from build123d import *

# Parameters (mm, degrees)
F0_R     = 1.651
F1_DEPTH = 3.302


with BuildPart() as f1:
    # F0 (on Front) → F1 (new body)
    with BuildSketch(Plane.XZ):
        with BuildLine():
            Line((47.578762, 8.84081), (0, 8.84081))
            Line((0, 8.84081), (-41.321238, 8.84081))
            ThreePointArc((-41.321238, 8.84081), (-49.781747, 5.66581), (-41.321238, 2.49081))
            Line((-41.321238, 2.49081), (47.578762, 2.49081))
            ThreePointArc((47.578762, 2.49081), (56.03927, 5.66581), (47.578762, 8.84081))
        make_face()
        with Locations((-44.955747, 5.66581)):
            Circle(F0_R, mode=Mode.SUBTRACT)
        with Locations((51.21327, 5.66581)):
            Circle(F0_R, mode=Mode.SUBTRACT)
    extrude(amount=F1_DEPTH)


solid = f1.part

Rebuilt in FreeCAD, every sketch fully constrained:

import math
import FreeCAD as App
import Part
import Sketcher
from FreeCAD import Vector
Q = App.Units.Quantity

doc = App.newDocument("Part")
params = doc.addObject("Spreadsheet::Sheet", "Params")
for row, (alias, value) in enumerate([
    ("sketch1_diameter", "0.13 in"),
    ("sketch1_radius", "0.19 in"),
    ("sketch1_width", "3.5 in"),
    ("pad1_length", "0.13 in"),
], start=1):
    params.set(f"A{row}", alias)
    params.set(f"B{row}", "=" + value)
    params.setAlias(f"B{row}", alias)

body = doc.addObject("PartDesign::Body", "Body")

# Sketch on XZ plane
sketch1 = body.newObject("Sketcher::SketchObject", "Sketch")
sketch1.AttachmentSupport = (doc.getObject("XZ_Plane"), [""])
sketch1.MapMode = "FlatFace"
sketch1.addGeometry([
    Part.LineSegment(Vector(47.578762, 8.84081, 0), Vector(-41.321238, 8.84081, 0)),  # 0
    Part.ArcOfCircle(Part.Circle(Vector(-44.955747, 5.66581, 0), Vector(0, 0, 1), 4.826), math.radians(41.139508), math.radians(318.860492)),  # 1
    Part.LineSegment(Vector(-41.321238, 2.49081, 0), Vector(47.578762, 2.49081, 0)),  # 2
    Part.ArcOfCircle(Part.Circle(Vector(51.21327, 5.66581, 0), Vector(0, 0, 1), 4.826), math.radians(-138.860488), math.radians(138.860488)),  # 3
    Part.Circle(Vector(-44.955747, 5.66581, 0), Vector(0, 0, 1), 1.651),  # 4
    Part.Circle(Vector(51.21327, 5.66581, 0), Vector(0, 0, 1), 1.651),  # 5
], False)
sketch1.addConstraint([
    Sketcher.Constraint("Coincident", 0, 2, 1, 1),
    Sketcher.Constraint("Coincident", 1, 2, 2, 1),
    Sketcher.Constraint("Coincident", 2, 2, 3, 1),
    Sketcher.Constraint("Coincident", 3, 2, 0, 1),
    Sketcher.Constraint("Horizontal", 0),
    Sketcher.Constraint("Horizontal", 2),
    Sketcher.Constraint("Coincident", 4, 3, 1, 3),
    Sketcher.Constraint("Coincident", 5, 3, 3, 3),
    Sketcher.Constraint("Equal", 1, 3),
    Sketcher.Constraint("Equal", 4, 5),
    Sketcher.Constraint("Horizontal", 1, 3, 3, 3),
    Sketcher.Constraint("Vertical", 0, 2, 1, 2),
    Sketcher.Constraint("Diameter", 4, Q("0.13 in")),
    Sketcher.Constraint("Radius", 1, Q("0.19 in")),
    Sketcher.Constraint("DistanceX", 0, 2, 0, 1, Q("3.5 in")),
    Sketcher.Constraint("DistanceY", 1, 2, 0, 2, Q("0.25 in")),
    Sketcher.Constraint("DistanceY", -1, 1, 1, 3, 5.66581),
    Sketcher.Constraint("DistanceX", -1, 1, 3, 3, 51.21327),
])
sketch1.setExpression("Constraints[12]", "Params.sketch1_diameter")
sketch1.setExpression("Constraints[13]", "Params.sketch1_radius")
sketch1.setExpression("Constraints[14]", "Params.sketch1_width")
pad1 = body.newObject("PartDesign::Pad", "Pad")
pad1.Profile = sketch1
pad1.setExpression("Length", "Params.pad1_length")

doc.recompute()
